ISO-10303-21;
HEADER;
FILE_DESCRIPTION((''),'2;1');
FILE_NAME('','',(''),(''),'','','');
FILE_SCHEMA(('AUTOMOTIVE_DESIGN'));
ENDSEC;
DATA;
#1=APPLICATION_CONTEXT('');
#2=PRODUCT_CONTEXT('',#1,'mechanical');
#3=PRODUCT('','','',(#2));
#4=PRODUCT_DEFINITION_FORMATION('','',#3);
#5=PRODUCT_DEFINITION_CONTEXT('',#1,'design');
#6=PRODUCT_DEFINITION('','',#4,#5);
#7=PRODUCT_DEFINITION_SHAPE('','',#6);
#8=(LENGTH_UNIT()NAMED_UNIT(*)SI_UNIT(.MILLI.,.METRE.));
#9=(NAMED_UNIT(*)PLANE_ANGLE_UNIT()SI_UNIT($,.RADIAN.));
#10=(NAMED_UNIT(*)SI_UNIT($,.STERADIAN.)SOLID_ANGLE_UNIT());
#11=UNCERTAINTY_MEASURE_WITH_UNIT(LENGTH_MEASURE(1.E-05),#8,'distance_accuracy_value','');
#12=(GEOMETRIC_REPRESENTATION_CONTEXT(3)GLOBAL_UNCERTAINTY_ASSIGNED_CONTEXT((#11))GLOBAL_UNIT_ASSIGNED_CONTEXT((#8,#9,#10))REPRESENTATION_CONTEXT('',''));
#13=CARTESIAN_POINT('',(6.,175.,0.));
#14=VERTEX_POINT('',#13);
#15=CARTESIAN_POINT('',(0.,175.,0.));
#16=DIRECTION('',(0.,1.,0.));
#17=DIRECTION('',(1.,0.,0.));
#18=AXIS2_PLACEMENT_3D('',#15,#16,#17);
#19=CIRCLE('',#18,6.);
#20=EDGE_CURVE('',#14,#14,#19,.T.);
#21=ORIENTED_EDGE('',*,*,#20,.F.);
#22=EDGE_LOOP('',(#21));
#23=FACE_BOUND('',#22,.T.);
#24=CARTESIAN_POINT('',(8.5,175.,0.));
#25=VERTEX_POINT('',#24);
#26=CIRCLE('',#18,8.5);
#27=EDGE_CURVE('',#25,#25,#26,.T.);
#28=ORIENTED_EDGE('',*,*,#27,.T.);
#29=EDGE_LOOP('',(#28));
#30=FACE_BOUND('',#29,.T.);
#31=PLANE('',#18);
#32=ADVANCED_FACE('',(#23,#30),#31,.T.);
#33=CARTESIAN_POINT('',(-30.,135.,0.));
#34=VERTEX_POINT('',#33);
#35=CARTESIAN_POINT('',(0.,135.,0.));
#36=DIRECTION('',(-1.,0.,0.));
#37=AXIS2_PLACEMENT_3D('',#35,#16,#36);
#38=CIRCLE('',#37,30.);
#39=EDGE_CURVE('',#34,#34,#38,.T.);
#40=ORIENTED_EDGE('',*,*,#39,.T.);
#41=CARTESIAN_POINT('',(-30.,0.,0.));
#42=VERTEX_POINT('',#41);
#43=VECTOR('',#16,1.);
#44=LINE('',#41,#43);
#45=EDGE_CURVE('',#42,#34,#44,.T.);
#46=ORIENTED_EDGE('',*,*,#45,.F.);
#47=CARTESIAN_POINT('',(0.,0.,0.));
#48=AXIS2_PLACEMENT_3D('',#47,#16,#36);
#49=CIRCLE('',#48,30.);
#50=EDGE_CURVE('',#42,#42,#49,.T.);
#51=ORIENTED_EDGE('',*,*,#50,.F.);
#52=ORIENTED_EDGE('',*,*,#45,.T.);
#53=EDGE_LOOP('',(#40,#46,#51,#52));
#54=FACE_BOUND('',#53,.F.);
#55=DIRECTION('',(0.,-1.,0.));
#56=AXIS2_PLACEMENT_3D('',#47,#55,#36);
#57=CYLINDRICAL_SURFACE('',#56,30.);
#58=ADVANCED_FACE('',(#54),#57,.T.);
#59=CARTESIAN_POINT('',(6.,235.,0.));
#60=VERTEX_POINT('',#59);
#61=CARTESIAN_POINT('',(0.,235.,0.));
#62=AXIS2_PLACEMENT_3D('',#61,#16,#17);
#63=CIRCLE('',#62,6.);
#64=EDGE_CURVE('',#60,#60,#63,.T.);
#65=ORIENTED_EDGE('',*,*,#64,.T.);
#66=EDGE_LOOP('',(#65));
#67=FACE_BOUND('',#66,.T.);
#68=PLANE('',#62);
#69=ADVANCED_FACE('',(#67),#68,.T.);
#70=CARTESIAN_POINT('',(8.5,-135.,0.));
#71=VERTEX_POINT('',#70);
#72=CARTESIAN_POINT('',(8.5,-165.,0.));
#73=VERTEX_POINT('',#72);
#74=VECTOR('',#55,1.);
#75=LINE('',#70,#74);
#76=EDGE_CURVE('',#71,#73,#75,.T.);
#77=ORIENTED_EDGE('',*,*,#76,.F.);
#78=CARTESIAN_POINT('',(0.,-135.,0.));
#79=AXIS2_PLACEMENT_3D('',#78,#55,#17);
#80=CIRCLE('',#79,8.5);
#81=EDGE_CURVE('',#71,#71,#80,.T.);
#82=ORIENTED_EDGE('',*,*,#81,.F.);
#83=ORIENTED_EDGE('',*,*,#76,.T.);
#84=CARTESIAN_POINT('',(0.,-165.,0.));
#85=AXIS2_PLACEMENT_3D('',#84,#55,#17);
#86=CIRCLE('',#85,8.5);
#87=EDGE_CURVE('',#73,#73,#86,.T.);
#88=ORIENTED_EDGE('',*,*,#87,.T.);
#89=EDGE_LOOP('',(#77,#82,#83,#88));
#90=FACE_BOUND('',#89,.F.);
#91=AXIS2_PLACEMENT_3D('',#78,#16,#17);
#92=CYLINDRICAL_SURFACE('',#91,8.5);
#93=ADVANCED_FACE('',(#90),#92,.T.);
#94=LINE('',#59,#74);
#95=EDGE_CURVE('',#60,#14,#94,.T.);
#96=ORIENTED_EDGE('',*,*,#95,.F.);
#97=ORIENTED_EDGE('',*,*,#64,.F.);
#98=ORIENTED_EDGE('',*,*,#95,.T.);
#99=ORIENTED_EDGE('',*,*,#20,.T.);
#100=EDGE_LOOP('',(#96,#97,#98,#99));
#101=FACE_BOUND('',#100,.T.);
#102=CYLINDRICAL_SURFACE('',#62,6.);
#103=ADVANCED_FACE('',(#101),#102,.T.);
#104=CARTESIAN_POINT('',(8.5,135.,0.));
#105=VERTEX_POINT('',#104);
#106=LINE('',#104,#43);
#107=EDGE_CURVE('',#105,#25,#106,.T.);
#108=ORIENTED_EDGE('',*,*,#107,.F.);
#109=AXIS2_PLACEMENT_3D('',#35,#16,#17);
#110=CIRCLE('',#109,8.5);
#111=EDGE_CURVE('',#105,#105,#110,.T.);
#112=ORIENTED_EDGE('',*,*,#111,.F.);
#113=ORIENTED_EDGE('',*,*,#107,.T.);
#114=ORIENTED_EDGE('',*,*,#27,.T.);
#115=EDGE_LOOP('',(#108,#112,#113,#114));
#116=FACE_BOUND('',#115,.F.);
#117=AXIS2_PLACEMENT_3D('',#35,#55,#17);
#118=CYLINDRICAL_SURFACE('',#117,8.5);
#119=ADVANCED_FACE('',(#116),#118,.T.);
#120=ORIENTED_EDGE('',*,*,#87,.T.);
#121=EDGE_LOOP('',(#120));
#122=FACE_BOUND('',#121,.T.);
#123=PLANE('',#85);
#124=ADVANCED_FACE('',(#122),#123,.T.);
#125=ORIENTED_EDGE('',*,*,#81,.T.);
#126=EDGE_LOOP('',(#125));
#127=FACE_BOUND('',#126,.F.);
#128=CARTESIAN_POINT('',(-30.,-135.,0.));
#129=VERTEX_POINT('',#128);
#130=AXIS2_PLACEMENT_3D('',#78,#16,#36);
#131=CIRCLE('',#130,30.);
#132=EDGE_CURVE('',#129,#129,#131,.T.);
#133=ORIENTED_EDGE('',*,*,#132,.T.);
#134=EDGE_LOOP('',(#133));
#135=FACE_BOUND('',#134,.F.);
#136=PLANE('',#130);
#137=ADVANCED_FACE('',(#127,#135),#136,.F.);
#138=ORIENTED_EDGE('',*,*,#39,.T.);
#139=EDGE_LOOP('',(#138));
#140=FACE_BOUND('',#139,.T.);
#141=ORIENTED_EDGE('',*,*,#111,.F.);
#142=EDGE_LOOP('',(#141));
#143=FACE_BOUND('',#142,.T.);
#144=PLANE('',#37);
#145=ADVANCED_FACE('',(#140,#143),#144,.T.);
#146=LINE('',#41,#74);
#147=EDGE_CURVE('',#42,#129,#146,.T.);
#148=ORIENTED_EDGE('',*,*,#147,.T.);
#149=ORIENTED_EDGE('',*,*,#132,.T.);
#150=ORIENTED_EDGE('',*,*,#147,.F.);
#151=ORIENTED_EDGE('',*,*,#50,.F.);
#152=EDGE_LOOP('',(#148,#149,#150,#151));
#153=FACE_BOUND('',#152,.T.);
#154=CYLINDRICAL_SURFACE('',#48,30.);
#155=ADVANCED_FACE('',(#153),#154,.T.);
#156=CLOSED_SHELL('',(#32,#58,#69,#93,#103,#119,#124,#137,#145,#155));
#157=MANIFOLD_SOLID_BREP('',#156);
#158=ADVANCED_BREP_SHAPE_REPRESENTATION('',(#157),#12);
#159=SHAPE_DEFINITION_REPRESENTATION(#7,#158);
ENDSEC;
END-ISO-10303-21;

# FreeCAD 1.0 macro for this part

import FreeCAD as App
import Part
import Sketcher
from FreeCAD import Vector
Q = App.Units.Quantity

doc = App.newDocument("Part")
body = doc.addObject("PartDesign::Body", "Body")

# Sketch on XZ plane
sketch1 = doc.addObject("Sketcher::SketchObject", "Sketch")
body.addObject(sketch1)
sketch1.AttachmentSupport = (doc.XZ_Plane, [""])
sketch1.MapMode = "FlatFace"
sketch1.addGeometry(Part.Circle(Vector(0, 0, 0), Vector(0, 0, 1), 30), False)
sketch1.addConstraint([
    Sketcher.Constraint("Coincident", 0, 3, -1, 1),
    Sketcher.Constraint("Diameter", 0, Q("60 mm")),
])
pad1 = doc.addObject("PartDesign::Pad", "Pad")
body.addObject(pad1)
pad1.Profile = sketch1
pad1.Length = 270
pad1.Midplane = True

# Sketch on XZ plane
sketch2 = doc.addObject("Sketcher::SketchObject", "Sketch001")
body.addObject(sketch2)
sketch2.AttachmentSupport = (doc.XZ_Plane, [""])
sketch2.MapMode = "FlatFace"
sketch2.AttachmentOffset = App.Placement(Vector(0, 0, 135), App.Rotation())
sketch2.addGeometry(Part.Circle(Vector(0, 0, 0), Vector(0, 0, 1), 8), False)
sketch2.addConstraint([
    Sketcher.Constraint("Coincident", 0, 3, -1, 1),
    Sketcher.Constraint("Diameter", 0, Q("17 mm")),
])
pad2 = doc.addObject("PartDesign::Pad", "Pad001")
body.addObject(pad2)
pad2.Profile = sketch2
pad2.Length = 30

# Sketch on XZ plane
sketch3 = doc.addObject("Sketcher::SketchObject", "Sketch002")
body.addObject(sketch3)
sketch3.AttachmentSupport = (doc.XZ_Plane, [""])
sketch3.MapMode = "FlatFace"
sketch3.AttachmentOffset = App.Placement(Vector(0, 0, -135), App.Rotation())
sketch3.addGeometry(Part.Circle(Vector(0, 0, 0), Vector(0, 0, 1), 8), False)
sketch3.addConstraint([
    Sketcher.Constraint("Coincident", 0, 3, -1, 1),
    Sketcher.Constraint("Diameter", 0, Q("17 mm")),
])
pad3 = doc.addObject("PartDesign::Pad", "Pad002")
body.addObject(pad3)
pad3.Profile = sketch3
pad3.Length = 100
pad3.Reversed = True

# Sketch on XZ plane
sketch4 = doc.addObject("Sketcher::SketchObject", "Sketch003")
body.addObject(sketch4)
sketch4.AttachmentSupport = (doc.XZ_Plane, [""])
sketch4.MapMode = "FlatFace"
sketch4.AttachmentOffset = App.Placement(Vector(0, 0, -235), App.Rotation())
sketch4.addGeometry([
    Part.Circle(Vector(0, 0, 0), Vector(0, 0, 1), 8),
    Part.Circle(Vector(0, 0, 0), Vector(0, 0, 1), 6),
], False)
sketch4.addConstraint([
    Sketcher.Constraint("Coincident", 0, 3, -1, 1),
    Sketcher.Constraint("Coincident", 1, 3, -1, 1),
    Sketcher.Constraint("Diameter", 1, Q("12 mm")),
    Sketcher.Constraint("Diameter", 0, Q("17 mm")),
])
pocket1 = doc.addObject("PartDesign::Pocket", "Pocket")
body.addObject(pocket1)
pocket1.Profile = sketch4
pocket1.Length = 60
pocket1.Reversed = True

doc.recompute()
